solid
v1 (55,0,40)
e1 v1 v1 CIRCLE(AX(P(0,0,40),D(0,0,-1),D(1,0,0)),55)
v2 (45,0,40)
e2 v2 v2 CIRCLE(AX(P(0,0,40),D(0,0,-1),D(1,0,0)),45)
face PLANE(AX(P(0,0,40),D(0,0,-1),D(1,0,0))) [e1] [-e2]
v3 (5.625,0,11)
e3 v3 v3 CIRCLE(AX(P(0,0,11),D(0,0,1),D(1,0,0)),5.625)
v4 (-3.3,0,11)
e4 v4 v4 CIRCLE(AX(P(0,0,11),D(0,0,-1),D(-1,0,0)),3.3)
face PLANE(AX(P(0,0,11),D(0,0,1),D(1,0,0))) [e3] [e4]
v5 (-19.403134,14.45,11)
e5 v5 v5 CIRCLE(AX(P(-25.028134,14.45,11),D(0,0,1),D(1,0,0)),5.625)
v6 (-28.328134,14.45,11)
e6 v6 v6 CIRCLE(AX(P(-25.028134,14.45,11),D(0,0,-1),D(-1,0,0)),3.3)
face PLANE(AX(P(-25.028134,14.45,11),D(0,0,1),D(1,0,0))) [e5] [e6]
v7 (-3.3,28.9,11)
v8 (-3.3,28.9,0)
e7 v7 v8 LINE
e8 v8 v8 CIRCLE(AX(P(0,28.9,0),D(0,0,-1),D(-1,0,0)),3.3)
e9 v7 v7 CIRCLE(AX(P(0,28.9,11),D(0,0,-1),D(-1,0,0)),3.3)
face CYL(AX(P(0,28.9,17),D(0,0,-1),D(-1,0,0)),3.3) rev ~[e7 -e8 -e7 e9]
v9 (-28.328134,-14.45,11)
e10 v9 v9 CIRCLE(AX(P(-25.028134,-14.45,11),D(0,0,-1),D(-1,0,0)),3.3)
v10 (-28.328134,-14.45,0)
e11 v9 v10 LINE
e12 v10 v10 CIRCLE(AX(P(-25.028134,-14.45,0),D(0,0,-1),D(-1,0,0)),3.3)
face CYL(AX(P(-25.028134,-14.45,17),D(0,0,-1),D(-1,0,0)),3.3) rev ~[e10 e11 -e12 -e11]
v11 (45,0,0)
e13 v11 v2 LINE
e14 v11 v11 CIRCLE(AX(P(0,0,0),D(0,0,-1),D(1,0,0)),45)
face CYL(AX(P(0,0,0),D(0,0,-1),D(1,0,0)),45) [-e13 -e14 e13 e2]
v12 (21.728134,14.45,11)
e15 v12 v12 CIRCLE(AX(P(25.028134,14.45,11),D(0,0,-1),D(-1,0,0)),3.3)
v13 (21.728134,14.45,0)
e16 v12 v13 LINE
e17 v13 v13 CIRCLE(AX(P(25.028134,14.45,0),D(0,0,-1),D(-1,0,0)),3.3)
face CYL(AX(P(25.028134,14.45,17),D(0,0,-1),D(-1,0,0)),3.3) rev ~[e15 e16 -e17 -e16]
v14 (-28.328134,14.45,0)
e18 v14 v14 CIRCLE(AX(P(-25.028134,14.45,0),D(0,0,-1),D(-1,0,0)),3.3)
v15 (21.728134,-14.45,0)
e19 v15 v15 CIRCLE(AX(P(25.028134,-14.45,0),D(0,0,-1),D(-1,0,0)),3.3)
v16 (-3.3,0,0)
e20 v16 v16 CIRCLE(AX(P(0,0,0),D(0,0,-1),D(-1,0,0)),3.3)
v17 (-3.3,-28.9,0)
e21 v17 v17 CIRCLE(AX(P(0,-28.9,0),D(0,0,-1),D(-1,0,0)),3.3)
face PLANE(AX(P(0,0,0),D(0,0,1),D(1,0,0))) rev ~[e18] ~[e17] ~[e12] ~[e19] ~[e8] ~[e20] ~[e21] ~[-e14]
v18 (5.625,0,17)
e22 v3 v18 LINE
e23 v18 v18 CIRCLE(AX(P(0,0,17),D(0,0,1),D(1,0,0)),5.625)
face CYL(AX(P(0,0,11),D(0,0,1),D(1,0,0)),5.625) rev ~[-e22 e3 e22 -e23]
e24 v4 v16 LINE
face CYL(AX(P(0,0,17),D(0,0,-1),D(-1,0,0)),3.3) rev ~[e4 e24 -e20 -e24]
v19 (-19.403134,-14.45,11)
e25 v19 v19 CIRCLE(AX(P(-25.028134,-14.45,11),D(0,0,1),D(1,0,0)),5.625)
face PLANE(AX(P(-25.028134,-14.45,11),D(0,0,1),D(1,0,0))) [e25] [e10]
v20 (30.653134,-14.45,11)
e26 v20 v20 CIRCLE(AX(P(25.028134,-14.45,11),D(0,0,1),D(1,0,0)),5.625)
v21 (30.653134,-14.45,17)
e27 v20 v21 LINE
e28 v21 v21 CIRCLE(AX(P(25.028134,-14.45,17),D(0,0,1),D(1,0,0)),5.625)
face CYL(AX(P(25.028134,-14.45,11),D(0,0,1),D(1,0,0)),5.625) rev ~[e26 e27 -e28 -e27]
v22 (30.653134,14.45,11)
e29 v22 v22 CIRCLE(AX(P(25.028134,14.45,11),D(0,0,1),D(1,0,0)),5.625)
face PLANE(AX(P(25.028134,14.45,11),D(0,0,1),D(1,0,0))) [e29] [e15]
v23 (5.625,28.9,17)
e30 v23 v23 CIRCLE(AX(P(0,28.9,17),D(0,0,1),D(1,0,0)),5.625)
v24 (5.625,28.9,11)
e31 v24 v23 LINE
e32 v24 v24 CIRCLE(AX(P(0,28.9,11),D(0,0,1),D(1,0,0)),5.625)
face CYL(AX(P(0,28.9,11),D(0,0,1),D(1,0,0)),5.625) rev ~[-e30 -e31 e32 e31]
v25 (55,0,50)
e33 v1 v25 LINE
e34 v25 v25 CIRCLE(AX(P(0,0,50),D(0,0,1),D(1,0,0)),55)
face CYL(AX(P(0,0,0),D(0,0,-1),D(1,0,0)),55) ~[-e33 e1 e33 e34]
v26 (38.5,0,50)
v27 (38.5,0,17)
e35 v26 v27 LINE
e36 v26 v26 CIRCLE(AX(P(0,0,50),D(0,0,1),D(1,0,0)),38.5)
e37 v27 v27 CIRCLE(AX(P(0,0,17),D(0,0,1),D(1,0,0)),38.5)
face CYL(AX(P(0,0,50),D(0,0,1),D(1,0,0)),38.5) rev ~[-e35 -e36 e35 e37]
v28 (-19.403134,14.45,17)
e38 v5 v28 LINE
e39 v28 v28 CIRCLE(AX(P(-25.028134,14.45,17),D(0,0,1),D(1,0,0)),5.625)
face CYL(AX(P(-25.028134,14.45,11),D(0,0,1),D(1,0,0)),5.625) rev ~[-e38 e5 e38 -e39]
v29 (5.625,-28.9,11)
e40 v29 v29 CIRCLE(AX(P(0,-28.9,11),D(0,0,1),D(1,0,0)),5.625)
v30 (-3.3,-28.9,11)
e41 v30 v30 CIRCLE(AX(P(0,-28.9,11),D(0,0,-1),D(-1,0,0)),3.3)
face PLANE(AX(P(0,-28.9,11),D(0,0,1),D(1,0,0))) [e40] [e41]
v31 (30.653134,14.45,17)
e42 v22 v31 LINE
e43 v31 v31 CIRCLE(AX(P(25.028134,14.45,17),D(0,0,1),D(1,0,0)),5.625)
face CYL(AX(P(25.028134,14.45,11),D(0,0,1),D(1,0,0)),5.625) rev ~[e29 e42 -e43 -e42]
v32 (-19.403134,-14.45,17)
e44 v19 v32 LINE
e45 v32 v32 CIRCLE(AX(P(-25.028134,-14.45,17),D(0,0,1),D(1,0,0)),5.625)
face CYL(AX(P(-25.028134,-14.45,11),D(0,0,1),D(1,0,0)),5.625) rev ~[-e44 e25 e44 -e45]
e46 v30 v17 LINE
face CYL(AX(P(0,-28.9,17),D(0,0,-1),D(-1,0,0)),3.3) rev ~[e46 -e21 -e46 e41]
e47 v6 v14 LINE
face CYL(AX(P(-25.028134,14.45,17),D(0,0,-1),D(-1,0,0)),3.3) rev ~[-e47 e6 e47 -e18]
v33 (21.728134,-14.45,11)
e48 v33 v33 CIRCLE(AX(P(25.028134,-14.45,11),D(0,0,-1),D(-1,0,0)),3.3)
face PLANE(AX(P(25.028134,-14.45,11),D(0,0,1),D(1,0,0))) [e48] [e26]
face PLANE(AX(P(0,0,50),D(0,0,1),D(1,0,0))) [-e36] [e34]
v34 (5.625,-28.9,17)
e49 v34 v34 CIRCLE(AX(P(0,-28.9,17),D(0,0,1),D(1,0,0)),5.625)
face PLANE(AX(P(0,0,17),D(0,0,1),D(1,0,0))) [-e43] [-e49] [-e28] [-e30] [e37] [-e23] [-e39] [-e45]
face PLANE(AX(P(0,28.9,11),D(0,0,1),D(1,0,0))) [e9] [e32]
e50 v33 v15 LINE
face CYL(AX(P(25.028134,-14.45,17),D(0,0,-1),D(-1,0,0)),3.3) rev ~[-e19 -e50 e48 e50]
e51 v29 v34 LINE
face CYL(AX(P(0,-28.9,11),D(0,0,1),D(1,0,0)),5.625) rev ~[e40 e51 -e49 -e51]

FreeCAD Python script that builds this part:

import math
import FreeCAD as App
import Part
import Sketcher

V = App.Vector

doc = App.newDocument("Part")
body = doc.addObject("PartDesign::Body", "Body")

# Sketch on XY plane
sketch1 = body.newObject("Sketcher::SketchObject", "Sketch")
sketch1.AttachmentSupport = (doc.getObject("XY_Plane"), [""])
sketch1.MapMode = "FlatFace"
sketch1.addGeometry(Part.Circle(V(0, 0, 0), V(0, 0, 1), 55), False)
sketch1.addGeometry(Part.ArcOfCircle(Part.Circle(V(0, -28.9, 0), V(0, 0, 1), 3), math.radians(150), math.radians(360)), False)
sketch1.addGeometry(Part.ArcOfCircle(Part.Circle(V(0, -28.9, 0), V(0, 0, 1), 3), math.radians(30), math.radians(150)), False)
sketch1.addGeometry(Part.ArcOfCircle(Part.Circle(V(0, -28.9, 0), V(0, 0, 1), 3), math.radians(0), math.radians(30)), False)
sketch1.addGeometry(Part.ArcOfCircle(Part.Circle(V(-25.028134, -14.45, 0), V(0, 0, 1), 3), math.radians(90), math.radians(330)), False)
sketch1.addGeometry(Part.ArcOfCircle(Part.Circle(V(-25.028134, -14.45, 0), V(0, 0, 1), 3), math.radians(0), math.radians(90)), False)
sketch1.addGeometry(Part.ArcOfCircle(Part.Circle(V(-25.028134, -14.45, 0), V(0, 0, 1), 3), math.radians(-30), math.radians(0)), False)
sketch1.addGeometry(Part.Circle(V(0, 0, 0), V(0, 0, 1), 3), False)
sketch1.addGeometry(Part.ArcOfCircle(Part.Circle(V(25.028134, -14.45, 0), V(0, 0, 1), 3), math.radians(0), math.radians(90)), False)
sketch1.addGeometry(Part.ArcOfCircle(Part.Circle(V(25.028134, -14.45, 0), V(0, 0, 1), 3), math.radians(-150), math.radians(0)), False)
sketch1.addGeometry(Part.ArcOfCircle(Part.Circle(V(25.028134, -14.45, 0), V(0, 0, 1), 3), math.radians(90), math.radians(210)), False)
sketch1.addGeometry(Part.ArcOfCircle(Part.Circle(V(-25.028134, 14.45, 0), V(0, 0, 1), 3), math.radians(30), math.radians(270)), False)
sketch1.addGeometry(Part.ArcOfCircle(Part.Circle(V(-25.028134, 14.45, 0), V(0, 0, 1), 3), math.radians(0), math.radians(30)), False)
sketch1.addGeometry(Part.ArcOfCircle(Part.Circle(V(-25.028134, 14.45, 0), V(0, 0, 1), 3), math.radians(-90), math.radians(0)), False)
sketch1.addGeometry(Part.ArcOfCircle(Part.Circle(V(0, 28.9, 0), V(0, 0, 1), 3), math.radians(-30), math.radians(0)), False)
sketch1.addGeometry(Part.ArcOfCircle(Part.Circle(V(0, 28.9, 0), V(0, 0, 1), 3), math.radians(-150), math.radians(-30)), False)
sketch1.addGeometry(Part.ArcOfCircle(Part.Circle(V(0, 28.9, 0), V(0, 0, 1), 3), math.radians(0), math.radians(210)), False)
sketch1.addGeometry(Part.ArcOfCircle(Part.Circle(V(25.028134, 14.45, 0), V(0, 0, 1), 3), math.radians(-90), math.radians(0)), False)
sketch1.addGeometry(Part.ArcOfCircle(Part.Circle(V(25.028134, 14.45, 0), V(0, 0, 1), 3), math.radians(150), math.radians(270)), False)
sketch1.addGeometry(Part.ArcOfCircle(Part.Circle(V(25.028134, 14.45, 0), V(0, 0, 1), 3), math.radians(0), math.radians(150)), False)
sketch1.addConstraint(Sketcher.Constraint("Tangent", 1, 1, 2, 2))
sketch1.addConstraint(Sketcher.Constraint("Tangent", 2, 1, 3, 2))
sketch1.addConstraint(Sketcher.Constraint("Tangent", 3, 1, 1, 2))
sketch1.addConstraint(Sketcher.Constraint("Tangent", 4, 1, 5, 2))
sketch1.addConstraint(Sketcher.Constraint("Tangent", 5, 1, 6, 2))
sketch1.addConstraint(Sketcher.Constraint("Tangent", 6, 1, 4, 2))
sketch1.addConstraint(Sketcher.Constraint("Tangent", 8, 1, 9, 2))
sketch1.addConstraint(Sketcher.Constraint("Tangent", 9, 1, 10, 2))
sketch1.addConstraint(Sketcher.Constraint("Tangent", 10, 1, 8, 2))
sketch1.addConstraint(Sketcher.Constraint("Tangent", 11, 1, 12, 2))
sketch1.addConstraint(Sketcher.Constraint("Tangent", 12, 1, 13, 2))
sketch1.addConstraint(Sketcher.Constraint("Tangent", 13, 1, 11, 2))
sketch1.addConstraint(Sketcher.Constraint("Tangent", 14, 1, 15, 2))
sketch1.addConstraint(Sketcher.Constraint("Tangent", 15, 1, 16, 2))
sketch1.addConstraint(Sketcher.Constraint("Tangent", 16, 1, 14, 2))
sketch1.addConstraint(Sketcher.Constraint("Tangent", 17, 1, 18, 2))
sketch1.addConstraint(Sketcher.Constraint("Tangent", 18, 1, 19, 2))
sketch1.addConstraint(Sketcher.Constraint("Tangent", 19, 1, 17, 2))
sketch1.addConstraint(Sketcher.Constraint("Coincident", 0, 3, -1, 1))
sketch1.addConstraint(Sketcher.Constraint("Coincident", 7, 3, -1, 1))
sketch1.addConstraint(Sketcher.Constraint("Equal", 3, 4))
sketch1.addConstraint(Sketcher.Constraint("Equal", 6, 7))
sketch1.addConstraint(Sketcher.Constraint("Equal", 7, 8))
sketch1.addConstraint(Sketcher.Constraint("Equal", 10, 11))
sketch1.addConstraint(Sketcher.Constraint("Equal", 13, 14))
sketch1.addConstraint(Sketcher.Constraint("Equal", 16, 17))
sketch1.addConstraint(Sketcher.Constraint("Symmetric", 8, 3, 11, 3, -1, 1))
sketch1.addConstraint(Sketcher.Constraint("Symmetric", 1, 3, 14, 3, -1, 1))
sketch1.addConstraint(Sketcher.Constraint("Symmetric", 4, 3, 17, 3, -1, 1))
sketch1.addConstraint(Sketcher.Constraint("Symmetric", 4, 3, 8, 3, -2))
sketch1.addConstraint(Sketcher.Constraint("Symmetric", 1, 1, 2, 1, -2))
sketch1.addConstraint(Sketcher.Constraint("Horizontal", 2, 3, 3, 1))
sketch1.addConstraint(Sketcher.Constraint("Horizontal", 10, 3, 5, 1))
sketch1.addConstraint(Sketcher.Constraint("Horizontal", 5, 1, 8, 1))
sketch1.addConstraint(Sketcher.Constraint("Horizontal", 6, 1, 9, 1))
sketch1.addConstraint(Sketcher.Constraint("Horizontal", 19, 3, 12, 1))
sketch1.addConstraint(Sketcher.Constraint("Horizontal", 14, 1, 15, 1))
sketch1.addConstraint(Sketcher.Constraint("Horizontal", 15, 3, 16, 1))
sketch1.addConstraint(Sketcher.Constraint("Horizontal", 11, 1, 18, 1))
sketch1.addConstraint(Sketcher.Constraint("Horizontal", 12, 1, 19, 1))
sketch1.addConstraint(Sketcher.Constraint("Vertical", 13, 3, 4, 1))
sketch1.addConstraint(Sketcher.Constraint("Vertical", 19, 3, 10, 1))
sketch1.addConstraint(Sketcher.Constraint("Vertical", 6, 1, 11, 1))
sketch1.addConstraint(Sketcher.Constraint("Vertical", 4, 1, 13, 1))
sketch1.addConstraint(Sketcher.Constraint("Vertical", 2, 1, 14, 1))
sketch1.addConstraint(Sketcher.Constraint("Vertical", 10, 1, 17, 1))
sketch1.addConstraint(Sketcher.Constraint("Diameter", 0, 110.0))
sketch1.addConstraint(Sketcher.Constraint("Diameter", 7, 6.0))
sketch1.addConstraint(Sketcher.Constraint("DistanceY", 1, 3, -1, 1, 28.9))
sketch1.addConstraint(Sketcher.Constraint("DistanceY", 1, 1, -1, 1, 27.4))
sketch1.addConstraint(Sketcher.Constraint("DistanceY", 4, 3, 11, 3, 28.9))
sketch1.addConstraint(Sketcher.Constraint("DistanceY", 6, 1, 5, 1, 1.5))
sketch1.addConstraint(Sketcher.Constraint("DistanceX", 2, 1, 9, 1, 19.831982))
pad1 = body.newObject("PartDesign::Pad", "Pad")
pad1.Profile = sketch1
pad1.Length = 50

# Sketch on XY plane
sketch2 = body.newObject("Sketcher::SketchObject", "Sketch001")
sketch2.AttachmentSupport = (doc.getObject("XY_Plane"), [""])
sketch2.MapMode = "FlatFace"
sketch2.AttachmentOffset = App.Placement(V(0, 0, 50), App.Rotation())
sketch2.addGeometry(Part.Circle(V(0, 0, 0), V(0, 0, 1), 38.5), False)
sketch2.addGeometry(Part.Circle(V(-25.028134, -14.45, 0), V(0, 0, 1), 3), False)
sketch2.addGeometry(Part.Circle(V(0, -28.9, 0), V(0, 0, 1), 3), False)
sketch2.addGeometry(Part.Circle(V(25.028134, -14.45, 0), V(0, 0, 1), 3), False)
sketch2.addGeometry(Part.Circle(V(-25.028134, 14.45, 0), V(0, 0, 1), 3), False)
sketch2.addGeometry(Part.Circle(V(0, 0, 0), V(0, 0, 1), 3), False)
sketch2.addGeometry(Part.Circle(V(25.028134, 14.45, 0), V(0, 0, 1), 3), False)
sketch2.addGeometry(Part.Circle(V(0, 28.9, 0), V(0, 0, 1), 3), False)
sketch2.addConstraint(Sketcher.Constraint("Coincident", 0, 3, -1, 1))
sketch2.addConstraint(Sketcher.Constraint("Coincident", 5, 3, -1, 1))
sketch2.addConstraint(Sketcher.Constraint("Equal", 1, 2))
sketch2.addConstraint(Sketcher.Constraint("Equal", 2, 3))
sketch2.addConstraint(Sketcher.Constraint("Equal", 3, 4))
sketch2.addConstraint(Sketcher.Constraint("Equal", 4, 5))
sketch2.addConstraint(Sketcher.Constraint("Equal", 5, 6))
sketch2.addConstraint(Sketcher.Constraint("Equal", 6, 7))
sketch2.addConstraint(Sketcher.Constraint("Symmetric", 3, 3, 4, 3, -1, 1))
sketch2.addConstraint(Sketcher.Constraint("Symmetric", 1, 3, 6, 3, -1, 1))
sketch2.addConstraint(Sketcher.Constraint("Symmetric", 2, 3, 7, 3, -1, 1))
sketch2.addConstraint(Sketcher.Constraint("Symmetric", 1, 3, 3, 3, -2))
sketch2.addConstraint(Sketcher.Constraint("PointOnObject", 2, 3, -2))
sketch2.addConstraint(Sketcher.Constraint("Diameter", 0, 77.0))
sketch2.addConstraint(Sketcher.Constraint("Diameter", 1, 6.0))
sketch2.addConstraint(Sketcher.Constraint("DistanceY", 2, 3, -1, 1, 28.9))
sketch2.addConstraint(Sketcher.Constraint("DistanceY", 1, 3, 4, 3, 28.9))
sketch2.addConstraint(Sketcher.Constraint("DistanceX", 1, 3, 3, 3, 50.056268))
pocket1 = body.newObject("PartDesign::Pocket", "Pocket")
pocket1.Profile = sketch2
pocket1.Length = 33

# Sketch on XY plane
sketch3 = body.newObject("Sketcher::SketchObject", "Sketch002")
sketch3.AttachmentSupport = (doc.getObject("XY_Plane"), [""])
sketch3.MapMode = "FlatFace"
sketch3.AttachmentOffset = App.Placement(V(0, 0, 17), App.Rotation())
sketch3.addGeometry(Part.Circle(V(-25.028134, 14.45, 0), V(0, 0, 1), 3.3), False)
sketch3.addGeometry(Part.Circle(V(-25.028134, -14.45, 0), V(0, 0, 1), 3.3), False)
sketch3.addGeometry(Part.Circle(V(0, -28.9, 0), V(0, 0, 1), 3.3), False)
sketch3.addGeometry(Part.Circle(V(25.028134, -14.45, 0), V(0, 0, 1), 3.3), False)
sketch3.addGeometry(Part.Circle(V(25.028134, 14.45, 0), V(0, 0, 1), 3.3), False)
sketch3.addGeometry(Part.Circle(V(0, 28.9, 0), V(0, 0, 1), 3.3), False)
sketch3.addGeometry(Part.Circle(V(0, 0, 0), V(0, 0, 1), 3.3), False)
sketch3.addConstraint(Sketcher.Constraint("Coincident", 6, 3, -1, 1))
sketch3.addConstraint(Sketcher.Constraint("Equal", 0, 1))
sketch3.addConstraint(Sketcher.Constraint("Equal", 1, 2))
sketch3.addConstraint(Sketcher.Constraint("Equal", 2, 3))
sketch3.addConstraint(Sketcher.Constraint("Equal", 3, 4))
sketch3.addConstraint(Sketcher.Constraint("Equal", 4, 5))
sketch3.addConstraint(Sketcher.Constraint("Equal", 5, 6))
sketch3.addConstraint(Sketcher.Constraint("Symmetric", 0, 3, 3, 3, -1, 1))
sketch3.addConstraint(Sketcher.Constraint("Symmetric", 1, 3, 4, 3, -1, 1))
sketch3.addConstraint(Sketcher.Constraint("Symmetric", 2, 3, 5, 3, -1, 1))
sketch3.addConstraint(Sketcher.Constraint("Symmetric", 1, 3, 3, 3, -2))
sketch3.addConstraint(Sketcher.Constraint("PointOnObject", 2, 3, -2))
sketch3.addConstraint(Sketcher.Constraint("Diameter", 0, 6.6))
sketch3.addConstraint(Sketcher.Constraint("DistanceY", 2, 3, -1, 1, 28.9))
sketch3.addConstraint(Sketcher.Constraint("DistanceY", 1, 3, 0, 3, 28.9))
sketch3.addConstraint(Sketcher.Constraint("DistanceX", 1, 3, 3, 3, 50.056268))
doc.recompute()
hole = body.newObject("PartDesign::Hole", "Hole")
hole.Profile = sketch3
hole.ThreadType = "None"
hole.Diameter = 6.6
hole.DepthType = "ThroughAll"
hole.HoleCutType = "Counterbore"
hole.HoleCutDiameter = 11.25
hole.HoleCutDepth = 6

# Sketch on XY plane
sketch4 = body.newObject("Sketcher::SketchObject", "Sketch003")
sketch4.AttachmentSupport = (doc.getObject("XY_Plane"), [""])
sketch4.MapMode = "FlatFace"
sketch4.addGeometry(Part.Circle(V(0, 0, 0), V(0, 0, 1), 57.5), False)
sketch4.addGeometry(Part.Circle(V(0, 0, 0), V(0, 0, 1), 45), False)
sketch4.addConstraint(Sketcher.Constraint("Coincident", 0, 3, -1, 1))
sketch4.addConstraint(Sketcher.Constraint("Coincident", 1, 3, -1, 1))
sketch4.addConstraint(Sketcher.Constraint("Diameter", 0, 115.0))
sketch4.addConstraint(Sketcher.Constraint("Diameter", 1, 90.0))
pocket2 = body.newObject("PartDesign::Pocket", "Pocket001")
pocket2.Profile = sketch4
pocket2.Length = 40
pocket2.Reversed = True

doc.recompute()
